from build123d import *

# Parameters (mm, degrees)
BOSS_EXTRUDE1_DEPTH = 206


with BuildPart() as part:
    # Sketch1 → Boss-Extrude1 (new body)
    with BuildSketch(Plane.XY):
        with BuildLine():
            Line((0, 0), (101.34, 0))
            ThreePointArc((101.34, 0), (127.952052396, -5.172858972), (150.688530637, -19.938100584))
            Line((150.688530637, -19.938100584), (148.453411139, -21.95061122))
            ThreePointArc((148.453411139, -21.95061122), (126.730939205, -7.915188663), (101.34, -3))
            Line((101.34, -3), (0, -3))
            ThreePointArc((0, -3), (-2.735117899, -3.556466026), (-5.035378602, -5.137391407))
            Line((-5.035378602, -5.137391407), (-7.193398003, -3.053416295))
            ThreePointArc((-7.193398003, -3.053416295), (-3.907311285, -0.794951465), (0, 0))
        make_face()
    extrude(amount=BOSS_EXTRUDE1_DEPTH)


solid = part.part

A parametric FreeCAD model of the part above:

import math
import FreeCAD as App
import Part
import Sketcher
Q = App.Units.Quantity

doc = App.newDocument("Part")
params = doc.addObject("Spreadsheet::Sheet", "Params")
for row, (alias, value) in enumerate([
    ("sketch1_radius", "10 mm"),
    ("sketch1_radius2", "7 mm"),
    ("sketch1_radius3", "68.04 mm"),
    ("sketch1_width", "101.34 mm"),
    ("pad1_length", "206 mm"),
], start=1):
    params.set(f"A{row}", alias)
    params.set(f"B{row}", "=" + value)
    params.setAlias(f"B{row}", alias)

body = doc.addObject("PartDesign::Body", "Body")

# Sketch on XY plane
sketch1 = body.newObject("Sketcher::SketchObject", "Sketch")
sketch1.AttachmentSupport = (doc.getObject("XY_Plane"), [""])
sketch1.MapMode = "FlatFace"
sketch1.addGeometry([
    Part.LineSegment(App.Vector(101.3, 0, 0), App.Vector(0, 0, 0)),  # 0
    Part.ArcOfCircle(Part.Circle(App.Vector(0, -10, 0), App.Vector(0, 0, 1), 10), math.radians(90), math.radians(136)),  # 1
    Part.LineSegment(App.Vector(-7.2, -3.1, 0), App.Vector(-5, -5.1, 0)),  # 2
    Part.ArcOfCircle(Part.Circle(App.Vector(0, -10, 0), App.Vector(0, 0, 1), 7), math.radians(90), math.radians(136)),  # 3
    Part.LineSegment(App.Vector(0, -3, 0), App.Vector(101.3, -3, 0)),  # 4
    Part.ArcOfCircle(Part.Circle(App.Vector(101.3, -71, 0), App.Vector(0, 0, 1), 68), math.radians(46), math.radians(90)),  # 5
    Part.LineSegment(App.Vector(148.5, -22, 0), App.Vector(150.7, -19.9, 0)),  # 6
    Part.ArcOfCircle(Part.Circle(App.Vector(101.3, -71, 0), App.Vector(0, 0, 1), 71), math.radians(46), math.radians(90)),  # 7
], False)
sketch1.addConstraint([
    Sketcher.Constraint("Tangent", 0, 2, 1, 1),
    Sketcher.Constraint("Coincident", 1, 2, 2, 1),
    Sketcher.Constraint("Coincident", 2, 2, 3, 2),
    Sketcher.Constraint("Tangent", 3, 1, 4, 1),
    Sketcher.Constraint("Tangent", 4, 2, 5, 2),
    Sketcher.Constraint("Coincident", 5, 1, 6, 1),
    Sketcher.Constraint("Coincident", 6, 2, 7, 1),
    Sketcher.Constraint("Tangent", 7, 2, 0, 1),
    Sketcher.Constraint("Horizontal", 0),
    Sketcher.Constraint("Horizontal", 4),
    Sketcher.Constraint("Coincident", 0, 2, -1, 1),
    Sketcher.Constraint("Coincident", 3, 3, 1, 3),
    Sketcher.Constraint("Coincident", 7, 3, 5, 3),
    Sketcher.Constraint("Radius", 1, Q("10 mm")),
    Sketcher.Constraint("Radius", 3, Q("7 mm")),
    Sketcher.Constraint("Angle", 2, Q("-44 deg")),
    Sketcher.Constraint("Angle", 6, Q("42 deg")),
    Sketcher.Constraint("Radius", 5, Q("68.04 mm")),
    Sketcher.Constraint("DistanceX", 0, 2, 0, 1, Q("101.34 mm")),
    Sketcher.Constraint("DistanceX", 1, 2, -1, 1, Q("7.193398 mm")),
    Sketcher.Constraint("DistanceY", 6, 2, -1, 1, Q("19.938101 mm")),
])
sketch1.setExpression("Constraints[13]", "Params.sketch1_radius")
sketch1.setExpression("Constraints[14]", "Params.sketch1_radius2")
sketch1.setExpression("Constraints[17]", "Params.sketch1_radius3")
sketch1.setExpression("Constraints[18]", "Params.sketch1_width")
pad1 = body.newObject("PartDesign::Pad", "Pad")
pad1.Profile = sketch1
pad1.setExpression("Length", "Params.pad1_length")

doc.recompute()
